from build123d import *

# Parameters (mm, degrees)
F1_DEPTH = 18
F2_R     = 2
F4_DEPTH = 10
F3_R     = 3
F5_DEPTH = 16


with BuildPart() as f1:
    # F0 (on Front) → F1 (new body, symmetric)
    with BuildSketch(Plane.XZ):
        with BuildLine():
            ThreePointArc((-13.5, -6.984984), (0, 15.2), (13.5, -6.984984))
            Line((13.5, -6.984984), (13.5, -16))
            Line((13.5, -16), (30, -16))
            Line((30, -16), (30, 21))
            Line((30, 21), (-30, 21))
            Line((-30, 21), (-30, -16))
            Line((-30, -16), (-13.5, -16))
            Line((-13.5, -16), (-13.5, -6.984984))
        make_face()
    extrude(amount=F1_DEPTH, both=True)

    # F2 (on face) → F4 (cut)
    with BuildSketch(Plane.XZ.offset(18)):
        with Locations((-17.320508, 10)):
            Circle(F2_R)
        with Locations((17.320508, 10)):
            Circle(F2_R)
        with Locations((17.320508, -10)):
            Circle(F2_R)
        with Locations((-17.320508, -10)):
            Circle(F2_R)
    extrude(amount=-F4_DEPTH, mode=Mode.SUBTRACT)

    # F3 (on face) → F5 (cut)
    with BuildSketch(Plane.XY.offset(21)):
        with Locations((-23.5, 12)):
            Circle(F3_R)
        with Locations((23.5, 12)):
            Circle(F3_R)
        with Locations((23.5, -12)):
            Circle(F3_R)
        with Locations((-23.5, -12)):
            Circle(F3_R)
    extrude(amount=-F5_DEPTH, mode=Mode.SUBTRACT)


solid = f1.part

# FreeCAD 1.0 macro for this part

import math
import FreeCAD as App
import Part
import Sketcher
Q = App.Units.Quantity

doc = App.newDocument("Part")
body = doc.addObject("PartDesign::Body", "Body")

sketch1 = body.newObject("Sketcher::SketchObject", "Sketch")
sketch1.AttachmentSupport = (doc.getObject("XZ_Plane"), [""])
sketch1.MapMode = "FlatFace"
sketch1.addGeometry([
    Part.ArcOfCircle(Part.Circle(App.Vector(0, 0, 0), App.Vector(0, 0, 1), 15.2), math.radians(-27.357326), math.radians(207.357326)),
    Part.LineSegment(App.Vector(13.5, -6.984984, 0), App.Vector(13.5, -16, 0)),
    Part.LineSegment(App.Vector(13.5, -16, 0), App.Vector(30, -16, 0)),
    Part.LineSegment(App.Vector(30, -16, 0), App.Vector(30, 21, 0)),
    Part.LineSegment(App.Vector(30, 21, 0), App.Vector(-30, 21, 0)),
    Part.LineSegment(App.Vector(-30, 21, 0), App.Vector(-30, -16, 0)),
    Part.LineSegment(App.Vector(-30, -16, 0), App.Vector(-13.5, -16, 0)),
    Part.LineSegment(App.Vector(-13.5, -16, 0), App.Vector(-13.5, -6.984984, 0)),
], False)
sketch1.addConstraint([
    Sketcher.Constraint("Coincident", 0, 1, 1, 1),
    Sketcher.Constraint("Coincident", 1, 2, 2, 1),
    Sketcher.Constraint("Coincident", 2, 2, 3, 1),
    Sketcher.Constraint("Coincident", 3, 2, 4, 1),
    Sketcher.Constraint("Coincident", 4, 2, 5, 1),
    Sketcher.Constraint("Coincident", 5, 2, 6, 1),
    Sketcher.Constraint("Coincident", 6, 2, 7, 1),
    Sketcher.Constraint("Coincident", 7, 2, 0, 2),
    Sketcher.Constraint("Vertical", 1),
    Sketcher.Constraint("Horizontal", 2),
    Sketcher.Constraint("Vertical", 3),
    Sketcher.Constraint("Horizontal", 4),
    Sketcher.Constraint("Vertical", 5),
    Sketcher.Constraint("Horizontal", 6),
    Sketcher.Constraint("Vertical", 7),
    Sketcher.Constraint("Coincident", 0, 3, -1, 1),
    Sketcher.Constraint("Symmetric", 2, 2, 5, 2, -2),
    Sketcher.Constraint("Horizontal", 0, 1, 7, 2),
    Sketcher.Constraint("Radius", 0, Q("15.2 mm")),
    Sketcher.Constraint("DistanceX", 4, 2, 4, 1, Q("60 mm")),
    Sketcher.Constraint("DistanceY", 3, 1, 3, 2, Q("37 mm")),
    Sketcher.Constraint("DistanceX", 2, 1, 2, 2, Q("16.5 mm")),
    Sketcher.Constraint("DistanceY", 1, 2, -1, 1, Q("16 mm")),
])
pad1 = body.newObject("PartDesign::Pad", "Pad")
pad1.Profile = sketch1
pad1.Length = 36
pad1.Midplane = True

sketch2 = body.newObject("Sketcher::SketchObject", "Sketch001")
sketch2.AttachmentSupport = (doc.getObject("XZ_Plane"), [""])
sketch2.MapMode = "FlatFace"
sketch2.AttachmentOffset = App.Placement(App.Vector(0, 0, 18), App.Rotation())
sketch2.addGeometry([
    Part.Circle(App.Vector(-17.320508, 10, 0), App.Vector(0, 0, 1), 2),
    Part.Circle(App.Vector(17.320508, 10, 0), App.Vector(0, 0, 1), 2),
    Part.Circle(App.Vector(17.320508, -10, 0), App.Vector(0, 0, 1), 2),
    Part.Circle(App.Vector(-17.320508, -10, 0), App.Vector(0, 0, 1), 2),
], False)
sketch2.addConstraint([
    Sketcher.Constraint("Equal", 0, 1),
    Sketcher.Constraint("Equal", 1, 2),
    Sketcher.Constraint("Equal", 2, 3),
    Sketcher.Constraint("Symmetric", 0, 3, 2, 3, -1, 1),
    Sketcher.Constraint("Symmetric", 1, 3, 3, 3, -1, 1),
    Sketcher.Constraint("Symmetric", 0, 3, 1, 3, -2),
    Sketcher.Constraint("Diameter", 0, Q("4 mm")),
    Sketcher.Constraint("DistanceY", -1, 1, 0, 3, Q("10 mm")),
    Sketcher.Constraint("DistanceX", 0, 3, -1, 1, Q("17.320508 mm")),
])
pocket1 = body.newObject("PartDesign::Pocket", "Pocket")
pocket1.Profile = sketch2
pocket1.Length = 10

sketch3 = body.newObject("Sketcher::SketchObject", "Sketch002")
sketch3.AttachmentSupport = (doc.getObject("XY_Plane"), [""])
sketch3.MapMode = "FlatFace"
sketch3.AttachmentOffset = App.Placement(App.Vector(0, 0, 21), App.Rotation())
sketch3.addGeometry([
    Part.Circle(App.Vector(-23.5, 12, 0), App.Vector(0, 0, 1), 3),
    Part.Circle(App.Vector(23.5, 12, 0), App.Vector(0, 0, 1), 3),
    Part.Circle(App.Vector(23.5, -12, 0), App.Vector(0, 0, 1), 3),
    Part.Circle(App.Vector(-23.5, -12, 0), App.Vector(0, 0, 1), 3),
], False)
sketch3.addConstraint([
    Sketcher.Constraint("Equal", 0, 1),
    Sketcher.Constraint("Equal", 1, 2),
    Sketcher.Constraint("Equal", 2, 3),
    Sketcher.Constraint("Symmetric", 0, 3, 2, 3, -1, 1),
    Sketcher.Constraint("Symmetric", 1, 3, 3, 3, -1, 1),
    Sketcher.Constraint("Symmetric", 0, 3, 1, 3, -2),
    Sketcher.Constraint("Diameter", 0, Q("6 mm")),
    Sketcher.Constraint("DistanceY", -1, 1, 0, 3, Q("12 mm")),
    Sketcher.Constraint("DistanceX", 0, 3, 1, 3, Q("47 mm")),
])
pocket2 = body.newObject("PartDesign::Pocket", "Pocket001")
pocket2.Profile = sketch3
pocket2.Length = 16

doc.recompute()
